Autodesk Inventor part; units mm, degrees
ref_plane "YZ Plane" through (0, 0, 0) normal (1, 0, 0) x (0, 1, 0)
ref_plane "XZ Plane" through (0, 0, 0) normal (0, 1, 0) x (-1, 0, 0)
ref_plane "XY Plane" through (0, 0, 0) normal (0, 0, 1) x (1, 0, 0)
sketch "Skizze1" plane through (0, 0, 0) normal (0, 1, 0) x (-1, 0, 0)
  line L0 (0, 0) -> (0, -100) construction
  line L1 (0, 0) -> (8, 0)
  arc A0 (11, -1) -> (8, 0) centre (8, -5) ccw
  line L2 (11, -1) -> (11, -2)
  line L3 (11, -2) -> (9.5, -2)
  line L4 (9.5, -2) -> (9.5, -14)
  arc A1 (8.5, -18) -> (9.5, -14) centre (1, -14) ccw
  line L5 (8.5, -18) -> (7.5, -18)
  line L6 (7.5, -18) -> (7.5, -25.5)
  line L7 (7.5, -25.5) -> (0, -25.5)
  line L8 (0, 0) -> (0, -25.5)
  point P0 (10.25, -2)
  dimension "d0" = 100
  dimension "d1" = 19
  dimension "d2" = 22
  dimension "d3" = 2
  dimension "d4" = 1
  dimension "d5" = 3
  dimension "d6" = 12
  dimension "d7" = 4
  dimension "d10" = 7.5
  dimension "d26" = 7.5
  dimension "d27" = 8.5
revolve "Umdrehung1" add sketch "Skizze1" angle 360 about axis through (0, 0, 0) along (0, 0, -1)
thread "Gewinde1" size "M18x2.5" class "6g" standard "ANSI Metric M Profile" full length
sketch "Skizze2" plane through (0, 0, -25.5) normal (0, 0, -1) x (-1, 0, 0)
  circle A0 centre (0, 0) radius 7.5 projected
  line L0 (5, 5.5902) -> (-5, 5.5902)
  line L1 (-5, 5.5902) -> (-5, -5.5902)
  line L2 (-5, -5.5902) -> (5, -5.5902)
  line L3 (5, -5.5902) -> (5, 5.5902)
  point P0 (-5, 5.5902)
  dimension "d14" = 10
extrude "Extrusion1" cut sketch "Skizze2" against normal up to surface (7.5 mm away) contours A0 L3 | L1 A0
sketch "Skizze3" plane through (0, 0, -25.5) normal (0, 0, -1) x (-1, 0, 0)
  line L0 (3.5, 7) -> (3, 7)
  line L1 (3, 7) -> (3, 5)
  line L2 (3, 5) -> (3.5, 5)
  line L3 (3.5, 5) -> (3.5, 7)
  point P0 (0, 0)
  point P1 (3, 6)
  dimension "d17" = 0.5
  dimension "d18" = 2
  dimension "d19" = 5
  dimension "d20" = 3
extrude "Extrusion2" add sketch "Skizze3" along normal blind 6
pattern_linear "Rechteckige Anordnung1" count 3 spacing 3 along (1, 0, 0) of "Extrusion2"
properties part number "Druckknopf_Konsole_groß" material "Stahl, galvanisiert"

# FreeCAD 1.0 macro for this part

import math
import FreeCAD as App
import Part
import Sketcher
from FreeCAD import Vector


def add_polygon(sketch, points):
    """Adds a closed chain of lines whose ends are joined by coincident constraints."""
    first, n = sketch.GeometryCount, len(points)
    for a, b in zip(points, points[1:] + points[:1]):
        sketch.addGeometry(Part.LineSegment(App.Vector(*a, 0), App.Vector(*b, 0)), False)
    for i in range(n):
        sketch.addConstraint(Sketcher.Constraint("Coincident", first + i, 2, first + (i + 1) % n, 1))

doc = App.newDocument("Part")
body = doc.addObject("PartDesign::Body", "Body")

# Sketch on XZ plane
sketch1 = body.newObject("Sketcher::SketchObject", "Sketch")
sketch1.AttachmentSupport = (doc.getObject("XZ_Plane"), [""])
sketch1.MapMode = "FlatFace"
sketch1.addGeometry([
    Part.LineSegment(Vector(-8, 0, 0), Vector(0, 0, 0)),  # 0
    Part.LineSegment(Vector(0, 0, 0), Vector(0, -25.5, 0)),  # 1
    Part.LineSegment(Vector(0, -25.5, 0), Vector(-7.5, -25.5, 0)),  # 2
    Part.LineSegment(Vector(-7.5, -25.5, 0), Vector(-7.5, -18, 0)),  # 3
    Part.LineSegment(Vector(-7.5, -18, 0), Vector(-8.5, -18, 0)),  # 4
    Part.ArcOfCircle(Part.Circle(Vector(-1, -14, 0), Vector(0, 0, 1), 8.5), math.radians(180), math.radians(208)),  # 5
    Part.LineSegment(Vector(-9.5, -14, 0), Vector(-9.5, -2, 0)),  # 6
    Part.LineSegment(Vector(-9.5, -2, 0), Vector(-11, -2, 0)),  # 7
    Part.LineSegment(Vector(-11, -2, 0), Vector(-11, -1, 0)),  # 8
    Part.ArcOfCircle(Part.Circle(Vector(-8, -5, 0), Vector(0, 0, 1), 5), math.radians(90), math.radians(127)),  # 9
], False)
sketch1.addConstraint([
    Sketcher.Constraint("Coincident", 0, 2, 1, 1),
    Sketcher.Constraint("Coincident", 1, 2, 2, 1),
    Sketcher.Constraint("Coincident", 2, 2, 3, 1),
    Sketcher.Constraint("Coincident", 3, 2, 4, 1),
    Sketcher.Constraint("Coincident", 4, 2, 5, 2),
    Sketcher.Constraint("Tangent", 5, 1, 6, 1),
    Sketcher.Constraint("Coincident", 6, 2, 7, 1),
    Sketcher.Constraint("Coincident", 7, 2, 8, 1),
    Sketcher.Constraint("Coincident", 8, 2, 9, 2),
    Sketcher.Constraint("Tangent", 9, 1, 0, 1),
    Sketcher.Constraint("Horizontal", 0),
    Sketcher.Constraint("Vertical", 1),
    Sketcher.Constraint("Horizontal", 2),
    Sketcher.Constraint("Vertical", 3),
    Sketcher.Constraint("Horizontal", 4),
    Sketcher.Constraint("Vertical", 6),
    Sketcher.Constraint("Horizontal", 7),
    Sketcher.Constraint("Vertical", 8),
    Sketcher.Constraint("Coincident", 0, 2, -1, 1),
    Sketcher.Constraint("Equal", 2, 3),
    Sketcher.Constraint("Equal", 4, 8),
    Sketcher.Constraint("Radius", 5, 8.5),
    Sketcher.Constraint("DistanceX", 4, 2, 4, 1, 1.0),
    Sketcher.Constraint("DistanceY", 6, 1, 6, 2, 12.0),
    Sketcher.Constraint("DistanceX", 2, 2, 2, 1, 7.5),
    Sketcher.Constraint("DistanceX", 5, 3, -1, 1, 1.0),
    Sketcher.Constraint("DistanceY", 6, 2, -1, 1, 2.0),
    Sketcher.Constraint("Radius", 9, 5.0),
    Sketcher.Constraint("DistanceX", 0, 1, 0, 2, 8.0),
])
revolution = body.newObject("PartDesign::Revolution", "Revolution")
revolution.Profile = sketch1
revolution.ReferenceAxis = (sketch1, ["V_Axis"])
revolution.Angle = 360

# Sketch on XY plane
sketch2 = body.newObject("Sketcher::SketchObject", "Sketch001")
sketch2.AttachmentSupport = (doc.getObject("XY_Plane"), [""])
sketch2.MapMode = "FlatFace"
sketch2.AttachmentOffset = App.Placement(Vector(0, 0, -25.5), App.Rotation())
sketch2.addGeometry([
    Part.ArcOfCircle(Part.Circle(Vector(0, 0, 0), Vector(0, 0, 1), 8), math.radians(132), math.radians(228)),
    Part.LineSegment(Vector(-5, -6, 0), Vector(-5, 6, 0)),
    Part.LineSegment(Vector(5, -6, 0), Vector(5, 6, 0)),
    Part.ArcOfCircle(Part.Circle(Vector(0, 0, 0), Vector(0, 0, 1), 8), math.radians(-48), math.radians(48)),
], False)
sketch2.addConstraint([
    Sketcher.Constraint("Coincident", 0, 1, 1, 2),
    Sketcher.Constraint("Coincident", 1, 1, 0, 2),
    Sketcher.Constraint("Coincident", 2, 1, 3, 1),
    Sketcher.Constraint("Coincident", 3, 2, 2, 2),
    Sketcher.Constraint("Vertical", 1),
    Sketcher.Constraint("Vertical", 2),
    Sketcher.Constraint("Coincident", 0, 3, -1, 1),
    Sketcher.Constraint("Coincident", 3, 3, -1, 1),
    Sketcher.Constraint("Equal", 0, 3),
    Sketcher.Constraint("Horizontal", 1, 1, 2, 1),
    Sketcher.Constraint("DistanceX", 1, 1, 2, 1, 10.0),
    Sketcher.Constraint("Radius", 0, 7.5),
])
pocket1 = body.newObject("PartDesign::Pocket", "Pocket")
pocket1.Profile = sketch2
pocket1.Length = 7.5
pocket1.Reversed = True

# Sketch on XY plane
sketch3 = body.newObject("Sketcher::SketchObject", "Sketch002")
sketch3.AttachmentSupport = (doc.getObject("XY_Plane"), [""])
sketch3.MapMode = "FlatFace"
sketch3.AttachmentOffset = App.Placement(Vector(0, 0, -25.5), App.Rotation())
add_polygon(sketch3, [(-3.5, 5), (-3.5, 7), (-3, 7), (-3, 5)])  # lines 0-3
sketch3.addConstraint([
    Sketcher.Constraint("Vertical", 0),
    Sketcher.Constraint("Horizontal", 1),
    Sketcher.Constraint("Vertical", 2),
    Sketcher.Constraint("Horizontal", 3),
    Sketcher.Constraint("DistanceY", 0, 1, 0, 2, 2.0),
    Sketcher.Constraint("DistanceX", 1, 1, 1, 2, 0.5),
    Sketcher.Constraint("DistanceX", 1, 2, -1, 1, 3.0),
    Sketcher.Constraint("DistanceY", -1, 1, 2, 2, 5.0),
])
pad1 = body.newObject("PartDesign::Pad", "Pad")
pad1.Profile = sketch3
pad1.Length = 6
pad1.Reversed = True
doc.recompute()

linearpattern = body.newObject("PartDesign::LinearPattern", "LinearPattern")
linearpattern.Originals = [pad1]
linearpattern.Direction = (doc.getObject("X_Axis"), [""])
linearpattern.Mode = "offset"
linearpattern.Offset = 3
linearpattern.Occurrences = 3
body.Tip = linearpattern

doc.recompute()
